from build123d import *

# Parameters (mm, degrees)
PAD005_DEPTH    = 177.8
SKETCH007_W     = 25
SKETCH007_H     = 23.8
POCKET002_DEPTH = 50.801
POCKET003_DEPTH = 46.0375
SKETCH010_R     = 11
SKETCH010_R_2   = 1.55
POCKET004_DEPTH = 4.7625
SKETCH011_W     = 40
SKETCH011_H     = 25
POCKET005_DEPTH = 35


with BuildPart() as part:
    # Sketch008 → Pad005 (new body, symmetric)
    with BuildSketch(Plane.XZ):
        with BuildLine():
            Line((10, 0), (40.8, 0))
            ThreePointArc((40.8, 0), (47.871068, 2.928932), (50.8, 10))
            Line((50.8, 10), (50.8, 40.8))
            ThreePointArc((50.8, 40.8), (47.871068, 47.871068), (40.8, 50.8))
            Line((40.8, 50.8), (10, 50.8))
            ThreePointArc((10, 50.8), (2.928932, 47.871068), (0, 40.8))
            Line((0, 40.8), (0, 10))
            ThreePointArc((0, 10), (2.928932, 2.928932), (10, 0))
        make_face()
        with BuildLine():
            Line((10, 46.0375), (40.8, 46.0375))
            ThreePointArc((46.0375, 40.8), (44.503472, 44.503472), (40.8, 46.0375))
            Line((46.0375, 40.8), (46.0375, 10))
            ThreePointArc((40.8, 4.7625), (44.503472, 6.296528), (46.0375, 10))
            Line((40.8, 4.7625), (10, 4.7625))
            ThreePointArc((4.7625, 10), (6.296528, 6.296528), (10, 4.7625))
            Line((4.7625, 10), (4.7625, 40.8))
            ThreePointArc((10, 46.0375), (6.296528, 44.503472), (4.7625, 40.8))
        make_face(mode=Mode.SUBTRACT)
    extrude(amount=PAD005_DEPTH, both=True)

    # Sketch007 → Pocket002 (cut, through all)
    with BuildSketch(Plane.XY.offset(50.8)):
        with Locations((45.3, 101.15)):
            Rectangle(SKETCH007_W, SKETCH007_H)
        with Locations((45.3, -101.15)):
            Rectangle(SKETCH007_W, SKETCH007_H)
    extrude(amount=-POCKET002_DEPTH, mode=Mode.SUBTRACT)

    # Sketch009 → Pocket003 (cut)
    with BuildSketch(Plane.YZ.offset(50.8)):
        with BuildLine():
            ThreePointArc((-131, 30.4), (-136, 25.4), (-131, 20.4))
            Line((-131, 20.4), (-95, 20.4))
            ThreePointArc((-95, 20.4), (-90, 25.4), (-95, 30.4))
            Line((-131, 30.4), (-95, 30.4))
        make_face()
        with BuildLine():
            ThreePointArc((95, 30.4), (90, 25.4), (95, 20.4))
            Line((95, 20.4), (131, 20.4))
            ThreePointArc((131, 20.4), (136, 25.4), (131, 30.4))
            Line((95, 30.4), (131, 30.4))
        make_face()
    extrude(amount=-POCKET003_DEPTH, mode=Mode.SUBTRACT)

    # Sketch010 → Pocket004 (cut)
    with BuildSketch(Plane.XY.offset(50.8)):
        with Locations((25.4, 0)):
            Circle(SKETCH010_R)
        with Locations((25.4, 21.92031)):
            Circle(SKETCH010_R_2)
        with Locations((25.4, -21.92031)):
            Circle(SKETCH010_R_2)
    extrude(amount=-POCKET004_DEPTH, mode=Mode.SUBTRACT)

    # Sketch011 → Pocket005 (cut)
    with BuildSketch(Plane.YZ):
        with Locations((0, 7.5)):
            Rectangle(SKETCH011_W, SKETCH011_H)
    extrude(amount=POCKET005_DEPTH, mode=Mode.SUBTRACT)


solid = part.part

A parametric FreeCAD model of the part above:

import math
import FreeCAD as App
import Part
import Sketcher

V = App.Vector

doc = App.newDocument("Part")
body = doc.addObject("PartDesign::Body", "Body")

sketch1 = doc.addObject("Sketcher::SketchObject", "Sketch")
body.addObject(sketch1)
sketch1.AttachmentSupport = (doc.XZ_Plane, [""])
sketch1.MapMode = "FlatFace"
sketch1.addGeometry([
    Part.LineSegment(V(10, 0, 0), V(41, 0, 0)),
    Part.ArcOfCircle(Part.Circle(V(41, 10, 0), V(0, 0, 1), 10), math.radians(-90), math.radians(0)),
    Part.LineSegment(V(51, 10, 0), V(51, 41, 0)),
    Part.ArcOfCircle(Part.Circle(V(41, 41, 0), V(0, 0, 1), 10), math.radians(0), math.radians(90)),
    Part.LineSegment(V(41, 51, 0), V(10, 51, 0)),
    Part.ArcOfCircle(Part.Circle(V(10, 41, 0), V(0, 0, 1), 10), math.radians(90), math.radians(180)),
    Part.LineSegment(V(0, 41, 0), V(0, 10, 0)),
    Part.ArcOfCircle(Part.Circle(V(10, 10, 0), V(0, 0, 1), 10), math.radians(180), math.radians(270)),
    Part.ArcOfCircle(Part.Circle(V(10, 41, 0), V(0, 0, 1), 5), math.radians(90), math.radians(180)),
    Part.LineSegment(V(10, 46, 0), V(41, 46, 0)),
    Part.ArcOfCircle(Part.Circle(V(41, 41, 0), V(0, 0, 1), 5), math.radians(0), math.radians(90)),
    Part.LineSegment(V(46, 41, 0), V(46, 10, 0)),
    Part.ArcOfCircle(Part.Circle(V(41, 10, 0), V(0, 0, 1), 5), math.radians(-90), math.radians(0)),
    Part.LineSegment(V(41, 5, 0), V(10, 5, 0)),
    Part.ArcOfCircle(Part.Circle(V(10, 10, 0), V(0, 0, 1), 5), math.radians(180), math.radians(270)),
    Part.LineSegment(V(5, 10, 0), V(5, 41, 0)),
], False)
sketch1.addConstraint([
    Sketcher.Constraint("Tangent", 0, 2, 1, 1),
    Sketcher.Constraint("Tangent", 1, 2, 2, 1),
    Sketcher.Constraint("Tangent", 2, 2, 3, 1),
    Sketcher.Constraint("Tangent", 3, 2, 4, 1),
    Sketcher.Constraint("Tangent", 4, 2, 5, 1),
    Sketcher.Constraint("Tangent", 5, 2, 6, 1),
    Sketcher.Constraint("Tangent", 6, 2, 7, 1),
    Sketcher.Constraint("Tangent", 7, 2, 0, 1),
    Sketcher.Constraint("Tangent", 8, 1, 9, 1),
    Sketcher.Constraint("Tangent", 9, 2, 10, 2),
    Sketcher.Constraint("Tangent", 10, 1, 11, 1),
    Sketcher.Constraint("Tangent", 11, 2, 12, 2),
    Sketcher.Constraint("Tangent", 12, 1, 13, 1),
    Sketcher.Constraint("Tangent", 13, 2, 14, 2),
    Sketcher.Constraint("Tangent", 14, 1, 15, 1),
    Sketcher.Constraint("Tangent", 15, 2, 8, 2),
    Sketcher.Constraint("Horizontal", 0),
    Sketcher.Constraint("Vertical", 2),
    Sketcher.Constraint("Horizontal", 4),
    Sketcher.Constraint("Vertical", 6),
    Sketcher.Constraint("Horizontal", 9),
    Sketcher.Constraint("Vertical", 11),
    Sketcher.Constraint("Horizontal", 13),
    Sketcher.Constraint("Vertical", 15),
    Sketcher.Constraint("Coincident", 8, 3, 5, 3),
    Sketcher.Constraint("Coincident", 10, 3, 3, 3),
    Sketcher.Constraint("Coincident", 12, 3, 1, 3),
    Sketcher.Constraint("Equal", 1, 3),
    Sketcher.Constraint("Equal", 3, 5),
    Sketcher.Constraint("Equal", 5, 7),
    Sketcher.Constraint("Equal", 12, 14),
    Sketcher.Constraint("PointOnObject", 0, 2, -1),
    Sketcher.Constraint("PointOnObject", 5, 2, -2),
    Sketcher.Constraint("Equal", 13, 2),
    Sketcher.Constraint("Radius", 1, 9.999999),
    Sketcher.Constraint("DistanceX", 0, 1, 0, 2, 30.8),
    Sketcher.Constraint("Radius", 8, 5.237499),
])
pad1 = doc.addObject("PartDesign::Pad", "Pad")
body.addObject(pad1)
pad1.Profile = sketch1
pad1.Length = 355.6
pad1.Midplane = True

sketch2 = doc.addObject("Sketcher::SketchObject", "Sketch001")
body.addObject(sketch2)
sketch2.AttachmentSupport = (doc.XY_Plane, [""])
sketch2.MapMode = "FlatFace"
sketch2.AttachmentOffset = App.Placement(V(0, 0, 50.8), App.Rotation())
sketch2.addGeometry([
    Part.LineSegment(V(33, 113, 0), V(33, 89, 0)),
    Part.LineSegment(V(33, 89, 0), V(58, 89, 0)),
    Part.LineSegment(V(58, 89, 0), V(58, 113, 0)),
    Part.LineSegment(V(58, 113, 0), V(33, 113, 0)),
    Part.LineSegment(V(33, -89, 0), V(33, -113, 0)),
    Part.LineSegment(V(33, -113, 0), V(58, -113, 0)),
    Part.LineSegment(V(58, -113, 0), V(58, -89, 0)),
    Part.LineSegment(V(58, -89, 0), V(33, -89, 0)),
], False)
sketch2.addConstraint([
    Sketcher.Constraint("Coincident", 0, 2, 1, 1),
    Sketcher.Constraint("Coincident", 1, 2, 2, 1),
    Sketcher.Constraint("Coincident", 2, 2, 3, 1),
    Sketcher.Constraint("Coincident", 3, 2, 0, 1),
    Sketcher.Constraint("Coincident", 4, 2, 5, 1),
    Sketcher.Constraint("Coincident", 5, 2, 6, 1),
    Sketcher.Constraint("Coincident", 6, 2, 7, 1),
    Sketcher.Constraint("Coincident", 7, 2, 4, 1),
    Sketcher.Constraint("Vertical", 0),
    Sketcher.Constraint("Horizontal", 1),
    Sketcher.Constraint("Vertical", 2),
    Sketcher.Constraint("Horizontal", 3),
    Sketcher.Constraint("Vertical", 4),
    Sketcher.Constraint("Horizontal", 5),
    Sketcher.Constraint("Vertical", 6),
    Sketcher.Constraint("Horizontal", 7),
    Sketcher.Constraint("Symmetric", 3, 2, 4, 2, -1),
    Sketcher.Constraint("Symmetric", 1, 2, 6, 2, -1),
    Sketcher.Constraint("DistanceX", 1, 1, 1, 2, 25.0),
    Sketcher.Constraint("DistanceY", 0, 2, 0, 1, 23.8),
    Sketcher.Constraint("DistanceX", -1, 1, 0, 2, 32.8),
    Sketcher.Constraint("DistanceY", 4, 2, 0, 2, 202.3),
])
pocket1 = doc.addObject("PartDesign::Pocket", "Pocket")
body.addObject(pocket1)
pocket1.Profile = sketch2
pocket1.Type = "ThroughAll"

sketch3 = doc.addObject("Sketcher::SketchObject", "Sketch002")
body.addObject(sketch3)
sketch3.AttachmentSupport = (doc.YZ_Plane, [""])
sketch3.MapMode = "FlatFace"
sketch3.AttachmentOffset = App.Placement(V(0, 0, 50.8), App.Rotation())
sketch3.addGeometry([
    Part.ArcOfCircle(Part.Circle(V(-131, 25, 0), V(0, 0, 1), 5), math.radians(90), math.radians(270)),
    Part.LineSegment(V(-131, 20, 0), V(-95, 20, 0)),
    Part.ArcOfCircle(Part.Circle(V(-95, 25, 0), V(0, 0, 1), 5), math.radians(-90), math.radians(90)),
    Part.LineSegment(V(-95, 30, 0), V(-131, 30, 0)),
    Part.ArcOfCircle(Part.Circle(V(95, 25, 0), V(0, 0, 1), 5), math.radians(90), math.radians(270)),
    Part.LineSegment(V(95, 20, 0), V(131, 20, 0)),
    Part.ArcOfCircle(Part.Circle(V(131, 25, 0), V(0, 0, 1), 5), math.radians(-90), math.radians(90)),
    Part.LineSegment(V(131, 30, 0), V(95, 30, 0)),
], False)
sketch3.addConstraint([
    Sketcher.Constraint("Tangent", 0, 2, 1, 1),
    Sketcher.Constraint("Tangent", 1, 2, 2, 1),
    Sketcher.Constraint("Tangent", 2, 2, 3, 1),
    Sketcher.Constraint("Tangent", 3, 2, 0, 1),
    Sketcher.Constraint("Tangent", 4, 2, 5, 1),
    Sketcher.Constraint("Tangent", 5, 2, 6, 1),
    Sketcher.Constraint("Tangent", 6, 2, 7, 1),
    Sketcher.Constraint("Tangent", 7, 2, 4, 1),
    Sketcher.Constraint("Horizontal", 1),
    Sketcher.Constraint("Horizontal", 3),
    Sketcher.Constraint("Horizontal", 5),
    Sketcher.Constraint("Horizontal", 7),
    Sketcher.Constraint("Equal", 2, 4),
    Sketcher.Constraint("Symmetric", 2, 3, 4, 3, -2),
    Sketcher.Constraint("Equal", 3, 5),
    Sketcher.Constraint("Radius", 0, 5.0),
    Sketcher.Constraint("DistanceX", 1, 1, 1, 2, 36.0),
    Sketcher.Constraint("DistanceX", 0, 3, -1, 1, 131.0),
    Sketcher.Constraint("DistanceY", -1, 1, 0, 3, 25.4),
])
pocket2 = doc.addObject("PartDesign::Pocket", "Pocket001")
body.addObject(pocket2)
pocket2.Profile = sketch3
pocket2.Length = 46.0375

sketch4 = doc.addObject("Sketcher::SketchObject", "Sketch003")
body.addObject(sketch4)
sketch4.AttachmentSupport = (doc.XY_Plane, [""])
sketch4.MapMode = "FlatFace"
sketch4.AttachmentOffset = App.Placement(V(0, 0, 50.8), App.Rotation())
sketch4.addGeometry([
    Part.Circle(V(25.4, 0, 0), V(0, 0, 1), 11),
    Part.Circle(V(25.4, 21.9, 0), V(0, 0, 1), 1.6),
    Part.Circle(V(25.4, -21.9, 0), V(0, 0, 1), 1.6),
], False)
sketch4.addConstraint([
    Sketcher.Constraint("Equal", 1, 2),
    Sketcher.Constraint("Symmetric", 1, 3, 2, 3, -1),
    Sketcher.Constraint("PointOnObject", 0, 3, -1),
    Sketcher.Constraint("Vertical", 0, 3, 1, 3),
    Sketcher.Constraint("Diameter", 0, 22.0),
    Sketcher.Constraint("Diameter", 1, 3.1),
    Sketcher.Constraint("DistanceX", -1, 1, 0, 3, 25.4),
    Sketcher.Constraint("DistanceY", -1, 1, 1, 3, 21.92031),
])
pocket3 = doc.addObject("PartDesign::Pocket", "Pocket002")
body.addObject(pocket3)
pocket3.Profile = sketch4
pocket3.Length = 4.7625

sketch5 = doc.addObject("Sketcher::SketchObject", "Sketch004")
body.addObject(sketch5)
sketch5.AttachmentSupport = (doc.YZ_Plane, [""])
sketch5.MapMode = "FlatFace"
sketch5.addGeometry([
    Part.LineSegment(V(-20, 20, 0), V(-20, -5, 0)),
    Part.LineSegment(V(-20, -5, 0), V(20, -5, 0)),
    Part.LineSegment(V(20, -5, 0), V(20, 20, 0)),
    Part.LineSegment(V(20, 20, 0), V(-20, 20, 0)),
], False)
sketch5.addConstraint([
    Sketcher.Constraint("Coincident", 0, 2, 1, 1),
    Sketcher.Constraint("Coincident", 1, 2, 2, 1),
    Sketcher.Constraint("Coincident", 2, 2, 3, 1),
    Sketcher.Constraint("Coincident", 3, 2, 0, 1),
    Sketcher.Constraint("Vertical", 0),
    Sketcher.Constraint("Horizontal", 1),
    Sketcher.Constraint("Vertical", 2),
    Sketcher.Constraint("Horizontal", 3),
    Sketcher.Constraint("DistanceX", 1, 1, 1, 2, 40.0),
    Sketcher.Constraint("DistanceY", 0, 2, 0, 1, 25.0),
    Sketcher.Constraint("DistanceX", 0, 2, -1, 1, 20.0),
    Sketcher.Constraint("DistanceY", 0, 2, -1, 1, 5.0),
])
pocket4 = doc.addObject("PartDesign::Pocket", "Pocket003")
body.addObject(pocket4)
pocket4.Profile = sketch5
pocket4.Length = 35
pocket4.Reversed = True

doc.recompute()
